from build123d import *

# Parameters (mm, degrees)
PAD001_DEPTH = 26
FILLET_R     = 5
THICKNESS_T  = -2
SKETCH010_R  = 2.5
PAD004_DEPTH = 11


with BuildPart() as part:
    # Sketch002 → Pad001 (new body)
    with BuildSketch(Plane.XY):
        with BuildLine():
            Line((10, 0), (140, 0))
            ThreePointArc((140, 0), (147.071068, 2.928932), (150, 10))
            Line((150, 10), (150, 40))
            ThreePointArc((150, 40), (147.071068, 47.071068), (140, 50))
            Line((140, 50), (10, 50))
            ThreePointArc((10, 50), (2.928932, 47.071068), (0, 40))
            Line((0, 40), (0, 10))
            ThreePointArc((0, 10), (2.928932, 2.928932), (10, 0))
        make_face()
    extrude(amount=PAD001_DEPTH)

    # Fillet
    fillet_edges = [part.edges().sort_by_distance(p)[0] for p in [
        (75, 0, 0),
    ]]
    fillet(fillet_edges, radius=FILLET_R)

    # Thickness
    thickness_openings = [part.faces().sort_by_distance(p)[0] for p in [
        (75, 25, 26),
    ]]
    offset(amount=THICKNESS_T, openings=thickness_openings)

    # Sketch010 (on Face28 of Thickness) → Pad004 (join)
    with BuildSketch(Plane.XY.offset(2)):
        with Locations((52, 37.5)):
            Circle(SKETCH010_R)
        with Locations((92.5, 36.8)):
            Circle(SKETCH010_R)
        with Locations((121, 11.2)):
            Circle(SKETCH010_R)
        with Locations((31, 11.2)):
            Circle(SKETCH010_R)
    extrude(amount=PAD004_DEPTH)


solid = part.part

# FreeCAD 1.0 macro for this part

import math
import FreeCAD as App
import Part
import Sketcher

V = App.Vector
Q = App.Units.Quantity


def edges_at(feature, points):
    """Names of the edges that pass closest to the given points."""
    edges = feature.Shape.Edges
    near = lambda p: min(range(len(edges)), key=lambda i: edges[i].distToShape(Part.Vertex(*p))[0])
    return sorted({f"Edge{near(p) + 1}" for p in points})


def faces_at(feature, points):
    """Names of the faces that lie closest to the given points."""
    faces = feature.Shape.Faces
    near = lambda p: min(range(len(faces)), key=lambda i: faces[i].distToShape(Part.Vertex(*p))[0])
    return sorted({f"Face{near(p) + 1}" for p in points})

doc = App.newDocument("Part")
body = doc.addObject("PartDesign::Body", "Body")

# Sketch on XY plane
sketch1 = doc.addObject("Sketcher::SketchObject", "Sketch")
body.addObject(sketch1)
sketch1.AttachmentSupport = (doc.XY_Plane, [""])
sketch1.MapMode = "FlatFace"
sketch1.addGeometry(Part.LineSegment(V(10, 0, 0), V(140, 0, 0)), False)
sketch1.addGeometry(Part.ArcOfCircle(Part.Circle(V(140.000001, 9.999999, 0), V(0, 0, 1), 9.999999), math.radians(-90.000004), math.radians(0.000004)), False)
sketch1.addGeometry(Part.LineSegment(V(150, 10, 0), V(150, 40, 0)), False)
sketch1.addGeometry(Part.ArcOfCircle(Part.Circle(V(140.000001, 40.000001, 0), V(0, 0, 1), 9.999999), math.radians(-0.000004), math.radians(90.000004)), False)
sketch1.addGeometry(Part.LineSegment(V(140, 50, 0), V(10, 50, 0)), False)
sketch1.addGeometry(Part.ArcOfCircle(Part.Circle(V(9.999999, 40.000001, 0), V(0, 0, 1), 9.999999), math.radians(89.999996), math.radians(180.000004)), False)
sketch1.addGeometry(Part.LineSegment(V(0, 40, 0), V(0, 10, 0)), False)
sketch1.addGeometry(Part.ArcOfCircle(Part.Circle(V(9.999999, 9.999999, 0), V(0, 0, 1), 9.999999), math.radians(179.999996), math.radians(270.000004)), False)
sketch1.addConstraint(Sketcher.Constraint("Tangent", 0, 2, 1, 1))
sketch1.addConstraint(Sketcher.Constraint("Tangent", 1, 2, 2, 1))
sketch1.addConstraint(Sketcher.Constraint("Tangent", 2, 2, 3, 1))
sketch1.addConstraint(Sketcher.Constraint("Tangent", 3, 2, 4, 1))
sketch1.addConstraint(Sketcher.Constraint("Tangent", 4, 2, 5, 1))
sketch1.addConstraint(Sketcher.Constraint("Tangent", 5, 2, 6, 1))
sketch1.addConstraint(Sketcher.Constraint("Tangent", 6, 2, 7, 1))
sketch1.addConstraint(Sketcher.Constraint("Tangent", 7, 2, 0, 1))
sketch1.addConstraint(Sketcher.Constraint("Horizontal", 0))
sketch1.addConstraint(Sketcher.Constraint("Vertical", 2))
sketch1.addConstraint(Sketcher.Constraint("Horizontal", 4))
sketch1.addConstraint(Sketcher.Constraint("Vertical", 6))
sketch1.addConstraint(Sketcher.Constraint("Equal", 1, 3))
sketch1.addConstraint(Sketcher.Constraint("Equal", 3, 5))
sketch1.addConstraint(Sketcher.Constraint("Equal", 5, 7))
sketch1.addConstraint(Sketcher.Constraint("PointOnObject", 0, 2, -1))
sketch1.addConstraint(Sketcher.Constraint("PointOnObject", 5, 2, -2))
sketch1.addConstraint(Sketcher.Constraint("Radius", 1, Q("9.999999 mm")))
sketch1.addConstraint(Sketcher.Constraint("DistanceX", 0, 1, 0, 2, Q("130 mm")))
sketch1.addConstraint(Sketcher.Constraint("DistanceY", 2, 1, 2, 2, Q("30 mm")))
pad1 = doc.addObject("PartDesign::Pad", "Pad")
body.addObject(pad1)
pad1.Profile = sketch1
pad1.Length = 26
doc.recompute()

fillet = doc.addObject("PartDesign::Fillet", "Fillet")
body.addObject(fillet)
fillet.Base = (pad1, edges_at(pad1, [(75, 0, 0)]))
fillet.Radius = 5
doc.recompute()

thickness = doc.addObject("PartDesign::Thickness", "Thickness")
body.addObject(thickness)
thickness.Base = (fillet, faces_at(fillet, [(75, 25, 26)]))
thickness.Value = 2
thickness.Reversed = True
thickness.Join = "Arc"

# Sketch on XY plane
sketch2 = doc.addObject("Sketcher::SketchObject", "Sketch001")
body.addObject(sketch2)
sketch2.AttachmentSupport = (doc.XY_Plane, [""])
sketch2.MapMode = "FlatFace"
sketch2.AttachmentOffset = App.Placement(V(0, 0, 2), App.Rotation())
sketch2.addGeometry(Part.Circle(V(52, 37.5, 0), V(0, 0, 1), 2.5), False)
sketch2.addGeometry(Part.Circle(V(92.5, 36.8, 0), V(0, 0, 1), 2.5), False)
sketch2.addGeometry(Part.Circle(V(121, 11.2, 0), V(0, 0, 1), 2.5), False)
sketch2.addGeometry(Part.Circle(V(31, 11.2, 0), V(0, 0, 1), 2.5), False)
sketch2.addConstraint(Sketcher.Constraint("Equal", 0, 1))
sketch2.addConstraint(Sketcher.Constraint("Equal", 1, 2))
sketch2.addConstraint(Sketcher.Constraint("Equal", 2, 3))
sketch2.addConstraint(Sketcher.Constraint("Horizontal", 2, 3, 3, 3))
sketch2.addConstraint(Sketcher.Constraint("Diameter", 0, Q("5 mm")))
sketch2.addConstraint(Sketcher.Constraint("DistanceX", -1, 1, 0, 3, Q("52 mm")))
sketch2.addConstraint(Sketcher.Constraint("DistanceX", -1, 1, 2, 3, Q("121 mm")))
sketch2.addConstraint(Sketcher.Constraint("DistanceX", -1, 1, 3, 3, Q("31 mm")))
sketch2.addConstraint(Sketcher.Constraint("DistanceY", -1, 1, 0, 3, Q("37.5 mm")))
sketch2.addConstraint(Sketcher.Constraint("DistanceX", -1, 1, 1, 3, Q("92.5 mm")))
sketch2.addConstraint(Sketcher.Constraint("DistanceY", -1, 1, 1, 3, Q("36.8 mm")))
sketch2.addConstraint(Sketcher.Constraint("DistanceY", -1, 1, 2, 3, Q("11.2 mm")))
pad2 = doc.addObject("PartDesign::Pad", "Pad001")
body.addObject(pad2)
pad2.Profile = sketch2
pad2.Length = 11

doc.recompute()
